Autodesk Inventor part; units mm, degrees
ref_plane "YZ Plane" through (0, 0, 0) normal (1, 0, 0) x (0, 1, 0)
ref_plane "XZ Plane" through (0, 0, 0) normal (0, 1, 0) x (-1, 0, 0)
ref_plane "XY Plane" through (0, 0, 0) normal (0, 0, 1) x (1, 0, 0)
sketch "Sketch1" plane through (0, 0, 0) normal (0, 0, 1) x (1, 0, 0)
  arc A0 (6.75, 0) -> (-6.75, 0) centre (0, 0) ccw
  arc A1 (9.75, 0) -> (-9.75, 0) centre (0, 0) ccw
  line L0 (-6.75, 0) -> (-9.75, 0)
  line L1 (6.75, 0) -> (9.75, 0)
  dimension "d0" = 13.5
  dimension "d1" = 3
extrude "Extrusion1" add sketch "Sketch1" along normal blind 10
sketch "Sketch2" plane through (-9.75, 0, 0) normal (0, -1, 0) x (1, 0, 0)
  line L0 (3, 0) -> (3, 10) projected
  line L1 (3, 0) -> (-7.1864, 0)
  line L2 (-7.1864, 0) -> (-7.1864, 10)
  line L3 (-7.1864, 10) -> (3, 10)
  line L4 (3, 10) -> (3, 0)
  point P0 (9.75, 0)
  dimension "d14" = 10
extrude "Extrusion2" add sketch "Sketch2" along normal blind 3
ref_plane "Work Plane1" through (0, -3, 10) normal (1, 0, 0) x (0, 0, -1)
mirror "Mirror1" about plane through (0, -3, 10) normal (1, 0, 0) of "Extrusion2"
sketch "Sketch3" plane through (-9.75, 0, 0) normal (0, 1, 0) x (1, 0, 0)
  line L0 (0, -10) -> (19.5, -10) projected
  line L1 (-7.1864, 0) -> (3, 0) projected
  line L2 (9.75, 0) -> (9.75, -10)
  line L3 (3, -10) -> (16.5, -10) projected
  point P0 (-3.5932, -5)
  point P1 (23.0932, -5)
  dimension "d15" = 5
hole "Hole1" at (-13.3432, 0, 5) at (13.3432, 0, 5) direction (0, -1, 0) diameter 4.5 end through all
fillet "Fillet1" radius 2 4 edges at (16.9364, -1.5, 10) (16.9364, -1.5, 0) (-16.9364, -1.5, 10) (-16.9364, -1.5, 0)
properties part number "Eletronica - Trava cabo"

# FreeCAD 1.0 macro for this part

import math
import FreeCAD as App
import Part
import Sketcher
Q = App.Units.Quantity


def edges_at(feature, points):
    """Names of the edges that pass closest to the given points."""
    edges = feature.Shape.Edges
    near = lambda p: min(range(len(edges)), key=lambda i: edges[i].distToShape(Part.Vertex(*p))[0])
    return sorted({f"Edge{near(p) + 1}" for p in points})

doc = App.newDocument("Part")
body = doc.addObject("PartDesign::Body", "Body")

sketch1 = body.newObject("Sketcher::SketchObject", "Sketch")
sketch1.AttachmentSupport = (doc.getObject("XY_Plane"), [""])
sketch1.MapMode = "FlatFace"
sketch1.addGeometry(Part.ArcOfCircle(Part.Circle(App.Vector(0, 0, 0), App.Vector(0, 0, 1), 6.8), math.radians(0), math.radians(180)), False)
sketch1.addGeometry(Part.LineSegment(App.Vector(6.8, 0, 0), App.Vector(9.8, 0, 0)), False)
sketch1.addGeometry(Part.ArcOfCircle(Part.Circle(App.Vector(0, 0, 0), App.Vector(0, 0, 1), 9.8), math.radians(0), math.radians(180)), False)
sketch1.addGeometry(Part.LineSegment(App.Vector(-9.8, 0, 0), App.Vector(-6.8, 0, 0)), False)
sketch1.addConstraint(Sketcher.Constraint("Coincident", 0, 1, 1, 1))
sketch1.addConstraint(Sketcher.Constraint("Coincident", 1, 2, 2, 1))
sketch1.addConstraint(Sketcher.Constraint("Coincident", 2, 2, 3, 1))
sketch1.addConstraint(Sketcher.Constraint("Coincident", 3, 2, 0, 2))
sketch1.addConstraint(Sketcher.Constraint("Horizontal", 1))
sketch1.addConstraint(Sketcher.Constraint("Horizontal", 3))
sketch1.addConstraint(Sketcher.Constraint("Coincident", 0, 3, -1, 1))
sketch1.addConstraint(Sketcher.Constraint("Coincident", 2, 3, -1, 1))
sketch1.addConstraint(Sketcher.Constraint("PointOnObject", 0, 1, -1))
sketch1.addConstraint(Sketcher.Constraint("PointOnObject", 2, 2, -1))
sketch1.addConstraint(Sketcher.Constraint("DistanceX", 1, 1, 1, 2, Q("3 mm")))
sketch1.addConstraint(Sketcher.Constraint("Radius", 0, Q("6.75 mm")))
pad1 = body.newObject("PartDesign::Pad", "Pad")
pad1.Profile = sketch1
pad1.Length = 10

sketch2 = body.newObject("Sketcher::SketchObject", "Sketch001")
sketch2.AttachmentSupport = (doc.getObject("XZ_Plane"), [""])
sketch2.MapMode = "FlatFace"
sketch2.addGeometry(Part.LineSegment(App.Vector(-17, 0, 0), App.Vector(-7, 0, 0)), False)
sketch2.addGeometry(Part.LineSegment(App.Vector(-7, 0, 0), App.Vector(-7, 10, 0)), False)
sketch2.addGeometry(Part.LineSegment(App.Vector(-7, 10, 0), App.Vector(-17, 10, 0)), False)
sketch2.addGeometry(Part.LineSegment(App.Vector(-17, 10, 0), App.Vector(-17, 0, 0)), False)
sketch2.addConstraint(Sketcher.Constraint("Coincident", 0, 2, 1, 1))
sketch2.addConstraint(Sketcher.Constraint("Coincident", 1, 2, 2, 1))
sketch2.addConstraint(Sketcher.Constraint("Coincident", 2, 2, 3, 1))
sketch2.addConstraint(Sketcher.Constraint("Coincident", 3, 2, 0, 1))
sketch2.addConstraint(Sketcher.Constraint("Horizontal", 0))
sketch2.addConstraint(Sketcher.Constraint("Vertical", 1))
sketch2.addConstraint(Sketcher.Constraint("Horizontal", 2))
sketch2.addConstraint(Sketcher.Constraint("Vertical", 3))
sketch2.addConstraint(Sketcher.Constraint("PointOnObject", 0, 2, -1))
sketch2.addConstraint(Sketcher.Constraint("DistanceY", 1, 1, 1, 2, Q("10 mm")))
sketch2.addConstraint(Sketcher.Constraint("DistanceX", 0, 2, -1, 1, Q("6.75 mm")))
sketch2.addConstraint(Sketcher.Constraint("DistanceX", 0, 1, 0, 2, Q("10.1864 mm")))
pad2 = body.newObject("PartDesign::Pad", "Pad001")
pad2.Profile = sketch2
pad2.Length = 3
doc.recompute()

mirrored = body.newObject("PartDesign::Mirrored", "Mirrored")
mirrored.Originals = [pad2]
mirrored.MirrorPlane = (doc.getObject("YZ_Plane"), [""])
body.Tip = mirrored

sketch3 = body.newObject("Sketcher::SketchObject", "Sketch002")
sketch3.AttachmentSupport = (doc.getObject("XZ_Plane"), [""])
sketch3.MapMode = "FlatFace"
sketch3.addGeometry(Part.Circle(App.Vector(-13.3, 5, 0), App.Vector(0, 0, 1), 2.2), False)
sketch3.addGeometry(Part.Circle(App.Vector(13.3, 5, 0), App.Vector(0, 0, 1), 2.2), False)
sketch3.addConstraint(Sketcher.Constraint("Equal", 0, 1))
sketch3.addConstraint(Sketcher.Constraint("Symmetric", 0, 3, 1, 3, -2))
sketch3.addConstraint(Sketcher.Constraint("Diameter", 0, Q("4.5 mm")))
sketch3.addConstraint(Sketcher.Constraint("DistanceY", -1, 1, 0, 3, Q("5 mm")))
sketch3.addConstraint(Sketcher.Constraint("DistanceX", 0, 3, -1, 1, Q("13.3432 mm")))
doc.recompute()
hole = body.newObject("PartDesign::Hole", "Hole")
hole.Profile = sketch3
hole.ThreadType = "None"
hole.Diameter = 4.5
hole.DepthType = "ThroughAll"
hole.Reversed = True
doc.recompute()

fillet = body.newObject("PartDesign::Fillet", "Fillet")
fillet.Base = (hole, edges_at(hole, [
    (16.936, -1.5, 10),
    (16.936, -1.5, 0),
    (-16.936, -1.5, 10),
    (-16.936, -1.5, 0),
]))
fillet.Radius = 2

doc.recompute()
